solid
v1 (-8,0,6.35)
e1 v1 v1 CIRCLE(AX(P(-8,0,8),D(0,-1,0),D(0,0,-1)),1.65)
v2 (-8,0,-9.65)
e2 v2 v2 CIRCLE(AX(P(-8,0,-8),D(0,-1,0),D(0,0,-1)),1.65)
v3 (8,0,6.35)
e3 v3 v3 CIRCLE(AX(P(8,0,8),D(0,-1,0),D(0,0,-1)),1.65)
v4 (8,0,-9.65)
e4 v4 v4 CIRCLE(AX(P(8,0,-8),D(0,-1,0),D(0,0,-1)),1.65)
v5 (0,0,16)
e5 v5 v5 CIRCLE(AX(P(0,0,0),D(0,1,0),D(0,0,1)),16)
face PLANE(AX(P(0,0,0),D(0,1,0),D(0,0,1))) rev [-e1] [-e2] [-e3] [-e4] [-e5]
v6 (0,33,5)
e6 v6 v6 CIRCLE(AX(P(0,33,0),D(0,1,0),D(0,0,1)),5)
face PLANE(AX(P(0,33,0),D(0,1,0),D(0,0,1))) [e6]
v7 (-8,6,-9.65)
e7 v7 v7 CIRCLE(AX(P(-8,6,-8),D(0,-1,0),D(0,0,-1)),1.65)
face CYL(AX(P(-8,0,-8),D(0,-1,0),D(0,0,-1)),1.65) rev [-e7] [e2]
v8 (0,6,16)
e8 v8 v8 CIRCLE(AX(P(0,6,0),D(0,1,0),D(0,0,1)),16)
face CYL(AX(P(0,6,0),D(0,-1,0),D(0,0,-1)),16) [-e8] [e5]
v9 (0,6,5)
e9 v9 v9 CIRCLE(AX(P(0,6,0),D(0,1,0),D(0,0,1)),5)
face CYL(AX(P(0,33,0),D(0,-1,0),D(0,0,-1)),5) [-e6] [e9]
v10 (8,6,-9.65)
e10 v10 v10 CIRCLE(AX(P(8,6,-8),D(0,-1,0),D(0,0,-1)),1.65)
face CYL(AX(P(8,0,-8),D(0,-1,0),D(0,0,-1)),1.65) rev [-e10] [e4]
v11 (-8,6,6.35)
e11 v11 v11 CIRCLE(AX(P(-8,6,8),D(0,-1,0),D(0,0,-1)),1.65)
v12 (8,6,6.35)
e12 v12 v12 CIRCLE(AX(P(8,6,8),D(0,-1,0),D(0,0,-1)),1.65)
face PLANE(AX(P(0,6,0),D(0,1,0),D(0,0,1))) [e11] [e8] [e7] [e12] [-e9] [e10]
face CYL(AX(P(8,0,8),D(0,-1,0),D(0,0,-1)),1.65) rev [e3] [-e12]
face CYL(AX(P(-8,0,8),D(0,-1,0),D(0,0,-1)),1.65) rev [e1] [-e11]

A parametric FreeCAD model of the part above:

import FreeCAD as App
import Part
import Sketcher

doc = App.newDocument("Part")
body = doc.addObject("PartDesign::Body", "Body")

# Sketch on XZ plane
sketch1 = doc.addObject("Sketcher::SketchObject", "Sketch")
body.addObject(sketch1)
sketch1.AttachmentSupport = (doc.XZ_Plane, [""])
sketch1.MapMode = "FlatFace"
sketch1.addGeometry(Part.Circle(App.Vector(0, 0, 0), App.Vector(0, 0, 1), 16), False)
sketch1.addConstraint(Sketcher.Constraint("Coincident", 0, 3, -1, 1))
sketch1.addConstraint(Sketcher.Constraint("Diameter", 0, 32.0))
pad1 = doc.addObject("PartDesign::Pad", "Pad")
body.addObject(pad1)
pad1.Profile = sketch1
pad1.Length = 6
pad1.Reversed = True

# Sketch on XZ plane
sketch2 = doc.addObject("Sketcher::SketchObject", "Sketch001")
body.addObject(sketch2)
sketch2.AttachmentSupport = (doc.XZ_Plane, [""])
sketch2.MapMode = "FlatFace"
sketch2.addGeometry(Part.Circle(App.Vector(8, -8, 0), App.Vector(0, 0, 1), 1.65), False)
sketch2.addGeometry(Part.Circle(App.Vector(8, 8, 0), App.Vector(0, 0, 1), 1.65), False)
sketch2.addGeometry(Part.Circle(App.Vector(-8, 8, 0), App.Vector(0, 0, 1), 1.65), False)
sketch2.addGeometry(Part.Circle(App.Vector(-8, -8, 0), App.Vector(0, 0, 1), 1.65), False)
sketch2.addConstraint(Sketcher.Constraint("Equal", 0, 1))
sketch2.addConstraint(Sketcher.Constraint("Equal", 1, 2))
sketch2.addConstraint(Sketcher.Constraint("Equal", 2, 3))
sketch2.addConstraint(Sketcher.Constraint("Symmetric", 0, 3, 2, 3, -1, 1))
sketch2.addConstraint(Sketcher.Constraint("Symmetric", 1, 3, 3, 3, -1, 1))
sketch2.addConstraint(Sketcher.Constraint("Symmetric", 1, 3, 2, 3, -2))
sketch2.addConstraint(Sketcher.Constraint("Diameter", 0, 3.3))
sketch2.addConstraint(Sketcher.Constraint("DistanceX", -1, 1, 0, 3, 8.0))
sketch2.addConstraint(Sketcher.Constraint("DistanceY", 0, 3, -1, 1, 8.0))
doc.recompute()
hole = doc.addObject("PartDesign::Hole", "Hole")
body.addObject(hole)
hole.Profile = sketch2
hole.ThreadType = "None"
hole.Diameter = 3.3
hole.DepthType = "ThroughAll"

# Sketch on XZ plane
sketch3 = doc.addObject("Sketcher::SketchObject", "Sketch002")
body.addObject(sketch3)
sketch3.AttachmentSupport = (doc.XZ_Plane, [""])
sketch3.MapMode = "FlatFace"
sketch3.AttachmentOffset = App.Placement(App.Vector(0, 0, -6), App.Rotation())
sketch3.addGeometry(Part.Circle(App.Vector(0, 0, 0), App.Vector(0, 0, 1), 5), False)
sketch3.addConstraint(Sketcher.Constraint("Coincident", 0, 3, -1, 1))
sketch3.addConstraint(Sketcher.Constraint("Diameter", 0, 10.0))
pad2 = doc.addObject("PartDesign::Pad", "Pad001")
body.addObject(pad2)
pad2.Profile = sketch3
pad2.Length = 27
pad2.Reversed = True

doc.recompute()
